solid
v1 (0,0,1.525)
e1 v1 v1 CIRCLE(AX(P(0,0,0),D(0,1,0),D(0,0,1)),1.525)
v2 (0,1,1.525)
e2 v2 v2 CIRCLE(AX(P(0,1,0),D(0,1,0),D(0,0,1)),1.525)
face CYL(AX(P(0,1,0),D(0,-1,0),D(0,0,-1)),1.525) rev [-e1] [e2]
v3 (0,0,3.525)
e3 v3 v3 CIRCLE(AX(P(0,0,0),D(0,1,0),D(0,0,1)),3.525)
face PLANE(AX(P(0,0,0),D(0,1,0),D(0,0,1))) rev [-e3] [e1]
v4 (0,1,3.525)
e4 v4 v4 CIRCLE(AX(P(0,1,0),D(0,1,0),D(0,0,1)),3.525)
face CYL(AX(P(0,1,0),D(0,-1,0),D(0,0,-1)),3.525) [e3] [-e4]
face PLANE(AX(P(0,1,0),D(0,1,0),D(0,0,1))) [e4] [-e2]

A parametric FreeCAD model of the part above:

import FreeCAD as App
import Part
import Sketcher

V = App.Vector
Q = App.Units.Quantity

doc = App.newDocument("Part")
body = doc.addObject("PartDesign::Body", "Body")

# Sketch on XZ plane
sketch1 = body.newObject("Sketcher::SketchObject", "Sketch")
sketch1.AttachmentSupport = (doc.getObject("XZ_Plane"), [""])
sketch1.MapMode = "FlatFace"
sketch1.addGeometry([
    Part.Circle(V(0, 0, 0), V(0, 0, 1), 3.525),
    Part.Circle(V(0, 0, 0), V(0, 0, 1), 1.525),
], False)
sketch1.addConstraint([
    Sketcher.Constraint("Coincident", 0, 3, -1, 1),
    Sketcher.Constraint("Coincident", 1, 3, -1, 1),
    Sketcher.Constraint("Diameter", 0, Q("7.05 mm")),
    Sketcher.Constraint("Diameter", 1, Q("3.05 mm")),
])
pad1 = body.newObject("PartDesign::Pad", "Pad")
pad1.Profile = sketch1
pad1.Length = 1
pad1.Reversed = True

doc.recompute()
